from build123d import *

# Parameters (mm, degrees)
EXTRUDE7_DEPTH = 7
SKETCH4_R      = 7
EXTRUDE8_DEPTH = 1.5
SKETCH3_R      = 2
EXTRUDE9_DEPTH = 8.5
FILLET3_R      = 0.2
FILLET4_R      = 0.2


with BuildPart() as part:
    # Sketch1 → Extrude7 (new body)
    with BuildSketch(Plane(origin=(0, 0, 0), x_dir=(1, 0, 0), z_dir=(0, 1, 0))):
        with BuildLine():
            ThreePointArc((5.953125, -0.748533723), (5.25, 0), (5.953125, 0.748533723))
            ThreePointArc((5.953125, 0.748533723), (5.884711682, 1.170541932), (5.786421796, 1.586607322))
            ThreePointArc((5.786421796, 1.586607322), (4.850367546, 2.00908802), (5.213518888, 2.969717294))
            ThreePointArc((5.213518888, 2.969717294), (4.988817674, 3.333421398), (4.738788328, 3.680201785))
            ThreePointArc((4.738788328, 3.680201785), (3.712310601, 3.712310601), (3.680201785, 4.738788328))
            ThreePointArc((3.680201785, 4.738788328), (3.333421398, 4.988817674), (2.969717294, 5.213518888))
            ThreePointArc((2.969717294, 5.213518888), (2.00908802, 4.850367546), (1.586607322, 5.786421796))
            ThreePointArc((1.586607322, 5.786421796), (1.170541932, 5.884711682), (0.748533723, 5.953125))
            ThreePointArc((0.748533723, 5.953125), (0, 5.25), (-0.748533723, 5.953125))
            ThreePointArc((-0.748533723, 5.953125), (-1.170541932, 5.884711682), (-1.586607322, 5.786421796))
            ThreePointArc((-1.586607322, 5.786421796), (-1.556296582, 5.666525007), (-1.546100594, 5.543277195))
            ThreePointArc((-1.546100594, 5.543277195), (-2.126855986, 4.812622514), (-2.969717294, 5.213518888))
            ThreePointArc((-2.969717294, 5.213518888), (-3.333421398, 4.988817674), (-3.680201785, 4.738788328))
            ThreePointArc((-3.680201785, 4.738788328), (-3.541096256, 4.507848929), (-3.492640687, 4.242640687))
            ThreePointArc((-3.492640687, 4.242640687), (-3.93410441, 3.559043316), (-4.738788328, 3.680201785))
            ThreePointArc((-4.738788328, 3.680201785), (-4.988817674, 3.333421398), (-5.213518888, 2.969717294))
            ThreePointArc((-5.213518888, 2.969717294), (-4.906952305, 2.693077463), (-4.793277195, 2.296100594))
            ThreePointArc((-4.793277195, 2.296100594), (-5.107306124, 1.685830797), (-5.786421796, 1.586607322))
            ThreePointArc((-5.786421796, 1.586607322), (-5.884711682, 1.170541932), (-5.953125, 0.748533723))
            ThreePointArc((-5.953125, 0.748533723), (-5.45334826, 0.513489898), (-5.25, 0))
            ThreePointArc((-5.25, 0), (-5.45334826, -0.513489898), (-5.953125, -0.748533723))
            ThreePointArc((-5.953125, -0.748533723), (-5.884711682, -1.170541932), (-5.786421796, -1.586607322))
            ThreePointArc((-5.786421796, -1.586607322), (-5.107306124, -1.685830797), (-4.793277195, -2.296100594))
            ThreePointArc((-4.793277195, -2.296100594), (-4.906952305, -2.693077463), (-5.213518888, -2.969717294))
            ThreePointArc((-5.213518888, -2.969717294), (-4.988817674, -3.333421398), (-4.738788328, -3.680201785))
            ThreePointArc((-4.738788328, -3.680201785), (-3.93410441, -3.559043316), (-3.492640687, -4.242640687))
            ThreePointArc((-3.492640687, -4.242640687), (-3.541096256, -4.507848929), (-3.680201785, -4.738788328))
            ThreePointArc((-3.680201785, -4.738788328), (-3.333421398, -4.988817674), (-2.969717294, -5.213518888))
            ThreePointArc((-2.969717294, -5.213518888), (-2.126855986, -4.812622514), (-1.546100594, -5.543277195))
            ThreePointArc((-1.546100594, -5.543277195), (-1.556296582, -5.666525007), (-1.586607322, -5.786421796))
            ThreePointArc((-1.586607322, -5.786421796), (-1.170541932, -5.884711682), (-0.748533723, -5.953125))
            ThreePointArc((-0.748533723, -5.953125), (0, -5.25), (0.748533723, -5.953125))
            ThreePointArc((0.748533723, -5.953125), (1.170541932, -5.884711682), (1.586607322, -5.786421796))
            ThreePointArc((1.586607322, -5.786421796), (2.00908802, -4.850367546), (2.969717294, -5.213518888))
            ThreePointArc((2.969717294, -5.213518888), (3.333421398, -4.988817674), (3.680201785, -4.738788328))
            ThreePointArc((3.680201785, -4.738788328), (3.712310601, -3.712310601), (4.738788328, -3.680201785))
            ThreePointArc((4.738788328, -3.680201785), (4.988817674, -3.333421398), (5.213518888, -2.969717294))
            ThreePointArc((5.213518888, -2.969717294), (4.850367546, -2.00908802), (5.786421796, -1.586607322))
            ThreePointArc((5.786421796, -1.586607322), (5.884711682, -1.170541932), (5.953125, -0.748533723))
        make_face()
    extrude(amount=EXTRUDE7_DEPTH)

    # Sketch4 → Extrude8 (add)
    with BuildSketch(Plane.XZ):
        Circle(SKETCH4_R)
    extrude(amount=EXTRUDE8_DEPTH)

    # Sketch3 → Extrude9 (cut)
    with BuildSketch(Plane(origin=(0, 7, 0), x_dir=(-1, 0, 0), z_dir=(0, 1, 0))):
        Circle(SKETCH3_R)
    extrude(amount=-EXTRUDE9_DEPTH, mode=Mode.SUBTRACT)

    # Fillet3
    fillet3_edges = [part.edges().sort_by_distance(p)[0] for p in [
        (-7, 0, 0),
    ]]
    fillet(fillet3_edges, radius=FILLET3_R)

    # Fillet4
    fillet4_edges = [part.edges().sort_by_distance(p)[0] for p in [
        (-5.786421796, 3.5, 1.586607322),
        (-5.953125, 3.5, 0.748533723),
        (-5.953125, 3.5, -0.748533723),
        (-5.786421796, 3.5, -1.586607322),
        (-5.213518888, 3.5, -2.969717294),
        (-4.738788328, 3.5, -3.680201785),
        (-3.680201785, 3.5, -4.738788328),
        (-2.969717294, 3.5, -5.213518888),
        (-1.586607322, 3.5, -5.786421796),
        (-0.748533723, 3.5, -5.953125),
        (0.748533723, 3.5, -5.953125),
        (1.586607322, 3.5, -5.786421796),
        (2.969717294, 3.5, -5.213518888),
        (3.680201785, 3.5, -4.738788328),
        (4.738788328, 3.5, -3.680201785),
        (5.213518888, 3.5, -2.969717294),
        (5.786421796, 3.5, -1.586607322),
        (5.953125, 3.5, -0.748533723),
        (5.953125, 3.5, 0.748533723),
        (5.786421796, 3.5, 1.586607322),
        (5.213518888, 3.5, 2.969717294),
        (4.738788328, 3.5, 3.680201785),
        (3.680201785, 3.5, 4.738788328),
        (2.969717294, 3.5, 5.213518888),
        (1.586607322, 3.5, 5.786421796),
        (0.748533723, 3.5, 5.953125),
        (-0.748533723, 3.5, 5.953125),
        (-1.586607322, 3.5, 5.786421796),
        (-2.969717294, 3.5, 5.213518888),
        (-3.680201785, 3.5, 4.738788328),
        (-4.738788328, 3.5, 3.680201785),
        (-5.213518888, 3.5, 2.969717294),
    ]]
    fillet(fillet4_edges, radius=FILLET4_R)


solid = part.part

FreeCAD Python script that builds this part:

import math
import FreeCAD as App
import Part
import Sketcher


def edges_at(feature, points):
    """Names of the edges that pass closest to the given points."""
    edges = feature.Shape.Edges
    near = lambda p: min(range(len(edges)), key=lambda i: edges[i].distToShape(Part.Vertex(*p))[0])
    return sorted({f"Edge{near(p) + 1}" for p in points})

doc = App.newDocument("Part")
body = doc.addObject("PartDesign::Body", "Body")

# Sketch on XZ plane
sketch1 = body.newObject("Sketcher::SketchObject", "Sketch")
sketch1.AttachmentSupport = (doc.getObject("XZ_Plane"), [""])
sketch1.MapMode = "FlatFace"
sketch1.addGeometry([
    Part.ArcOfCircle(Part.Circle(App.Vector(6, 0, 0), App.Vector(0, 0, 1), 0.75), math.radians(94), math.radians(266)),  # 0
    Part.ArcOfCircle(Part.Circle(App.Vector(0, 0, 0), App.Vector(0, 0, 1), 6), math.radians(-15.33), math.radians(-7.17)),  # 1
    Part.ArcOfCircle(Part.Circle(App.Vector(5.54, -2.3, 0), App.Vector(0, 0, 1), 0.75), math.radians(71), math.radians(244)),  # 2
    Part.ArcOfCircle(Part.Circle(App.Vector(0, 0, 0), App.Vector(0, 0, 1), 6), math.radians(-37.83), math.radians(-29.67)),  # 3
    Part.ArcOfCircle(Part.Circle(App.Vector(4.24, -4.24, 0), App.Vector(0, 0, 1), 0.75), math.radians(49), math.radians(221)),  # 4
    Part.ArcOfCircle(Part.Circle(App.Vector(0, 0, 0), App.Vector(0, 0, 1), 6), math.radians(-60.33), math.radians(-52.17)),  # 5
    Part.ArcOfCircle(Part.Circle(App.Vector(2.3, -5.54, 0), App.Vector(0, 0, 1), 0.75), math.radians(26), math.radians(199)),  # 6
    Part.ArcOfCircle(Part.Circle(App.Vector(0, 0, 0), App.Vector(0, 0, 1), 6), math.radians(-82.83), math.radians(-74.67)),  # 7
    Part.ArcOfCircle(Part.Circle(App.Vector(0, -6, 0), App.Vector(0, 0, 1), 0.75), math.radians(4), math.radians(176)),  # 8
    Part.ArcOfCircle(Part.Circle(App.Vector(0, 0, 0), App.Vector(0, 0, 1), 6), math.radians(-105.33), math.radians(-97.17)),  # 9
    Part.ArcOfCircle(Part.Circle(App.Vector(-2.3, -5.54, 0), App.Vector(0, 0, 1), 0.75), math.radians(-18.92), math.radians(0)),  # 10
    Part.ArcOfCircle(Part.Circle(App.Vector(-2.3, -5.54, 0), App.Vector(0, 0, 1), 0.75), math.radians(0), math.radians(154)),  # 11
    Part.ArcOfCircle(Part.Circle(App.Vector(0, 0, 0), App.Vector(0, 0, 1), 6), math.radians(-127.83), math.radians(-119.67)),  # 12
    Part.ArcOfCircle(Part.Circle(App.Vector(-4.24, -4.24, 0), App.Vector(0, 0, 1), 0.75), math.radians(-41), math.radians(0)),  # 13
    Part.ArcOfCircle(Part.Circle(App.Vector(-4.24, -4.24, 0), App.Vector(0, 0, 1), 0.75), math.radians(0), math.radians(131)),  # 14
    Part.ArcOfCircle(Part.Circle(App.Vector(0, 0, 0), App.Vector(0, 0, 1), 6), math.radians(-150.33), math.radians(-142.17)),  # 15
    Part.ArcOfCircle(Part.Circle(App.Vector(-5.54, -2.3, 0), App.Vector(0, 0, 1), 0.75), math.radians(-64), math.radians(0)),  # 16
    Part.ArcOfCircle(Part.Circle(App.Vector(-5.54, -2.3, 0), App.Vector(0, 0, 1), 0.75), math.radians(0), math.radians(109)),  # 17
    Part.ArcOfCircle(Part.Circle(App.Vector(0, 0, 0), App.Vector(0, 0, 1), 6), math.radians(-172.83), math.radians(-164.67)),  # 18
    Part.ArcOfCircle(Part.Circle(App.Vector(-6, 0, 0), App.Vector(0, 0, 1), 0.75), math.radians(-86), math.radians(0)),  # 19
    Part.ArcOfCircle(Part.Circle(App.Vector(-6, 0, 0), App.Vector(0, 0, 1), 0.75), math.radians(0), math.radians(86)),  # 20
    Part.ArcOfCircle(Part.Circle(App.Vector(0, 0, 0), App.Vector(0, 0, 1), 6), math.radians(164.67), math.radians(172.83)),  # 21
    Part.ArcOfCircle(Part.Circle(App.Vector(-5.54, 2.3, 0), App.Vector(0, 0, 1), 0.75), math.radians(-109), math.radians(0)),  # 22
    Part.ArcOfCircle(Part.Circle(App.Vector(-5.54, 2.3, 0), App.Vector(0, 0, 1), 0.75), math.radians(0), math.radians(64)),  # 23
    Part.ArcOfCircle(Part.Circle(App.Vector(0, 0, 0), App.Vector(0, 0, 1), 6), math.radians(142.17), math.radians(150.33)),  # 24
    Part.ArcOfCircle(Part.Circle(App.Vector(-4.24, 4.24, 0), App.Vector(0, 0, 1), 0.75), math.radians(-131), math.radians(0)),  # 25
    Part.ArcOfCircle(Part.Circle(App.Vector(-4.24, 4.24, 0), App.Vector(0, 0, 1), 0.75), math.radians(0), math.radians(41)),  # 26
    Part.ArcOfCircle(Part.Circle(App.Vector(0, 0, 0), App.Vector(0, 0, 1), 6), math.radians(119.67), math.radians(127.83)),  # 27
    Part.ArcOfCircle(Part.Circle(App.Vector(-2.3, 5.54, 0), App.Vector(0, 0, 1), 0.75), math.radians(-154), math.radians(0)),  # 28
    Part.ArcOfCircle(Part.Circle(App.Vector(-2.3, 5.54, 0), App.Vector(0, 0, 1), 0.75), math.radians(0), math.radians(18.92)),  # 29
    Part.ArcOfCircle(Part.Circle(App.Vector(0, 0, 0), App.Vector(0, 0, 1), 6), math.radians(97.17), math.radians(105.33)),  # 30
    Part.ArcOfCircle(Part.Circle(App.Vector(0, 6, 0), App.Vector(0, 0, 1), 0.75), math.radians(-176), math.radians(-4)),  # 31
    Part.ArcOfCircle(Part.Circle(App.Vector(0, 0, 0), App.Vector(0, 0, 1), 6), math.radians(74.67), math.radians(82.83)),  # 32
    Part.ArcOfCircle(Part.Circle(App.Vector(2.3, 5.54, 0), App.Vector(0, 0, 1), 0.75), math.radians(161), math.radians(334)),  # 33
    Part.ArcOfCircle(Part.Circle(App.Vector(0, 0, 0), App.Vector(0, 0, 1), 6), math.radians(52.17), math.radians(60.33)),  # 34
    Part.ArcOfCircle(Part.Circle(App.Vector(4.24, 4.24, 0), App.Vector(0, 0, 1), 0.75), math.radians(139), math.radians(311)),  # 35
    Part.ArcOfCircle(Part.Circle(App.Vector(0, 0, 0), App.Vector(0, 0, 1), 6), math.radians(29.67), math.radians(37.83)),  # 36
    Part.ArcOfCircle(Part.Circle(App.Vector(5.54, 2.3, 0), App.Vector(0, 0, 1), 0.75), math.radians(116), math.radians(289)),  # 37
    Part.ArcOfCircle(Part.Circle(App.Vector(0, 0, 0), App.Vector(0, 0, 1), 6), math.radians(7.17), math.radians(15.33)),  # 38
], False)
sketch1.addConstraint([
    Sketcher.Constraint("Coincident", 0, 2, 1, 2),
    Sketcher.Constraint("Coincident", 1, 1, 2, 1),
    Sketcher.Constraint("Coincident", 2, 2, 3, 2),
    Sketcher.Constraint("Coincident", 3, 1, 4, 1),
    Sketcher.Constraint("Coincident", 4, 2, 5, 2),
    Sketcher.Constraint("Coincident", 5, 1, 6, 1),
    Sketcher.Constraint("Coincident", 6, 2, 7, 2),
    Sketcher.Constraint("Coincident", 7, 1, 8, 1),
    Sketcher.Constraint("Coincident", 8, 2, 9, 2),
    Sketcher.Constraint("Coincident", 9, 1, 10, 1),
    Sketcher.Constraint("Tangent", 10, 2, 11, 1),
    Sketcher.Constraint("Coincident", 11, 2, 12, 2),
    Sketcher.Constraint("Coincident", 12, 1, 13, 1),
    Sketcher.Constraint("Tangent", 13, 2, 14, 1),
    Sketcher.Constraint("Coincident", 14, 2, 15, 2),
    Sketcher.Constraint("Coincident", 15, 1, 16, 1),
    Sketcher.Constraint("Tangent", 16, 2, 17, 1),
    Sketcher.Constraint("Coincident", 17, 2, 18, 2),
    Sketcher.Constraint("Coincident", 18, 1, 19, 1),
    Sketcher.Constraint("Tangent", 19, 2, 20, 1),
    Sketcher.Constraint("Coincident", 20, 2, 21, 2),
    Sketcher.Constraint("Coincident", 21, 1, 22, 1),
    Sketcher.Constraint("Tangent", 22, 2, 23, 1),
    Sketcher.Constraint("Coincident", 23, 2, 24, 2),
    Sketcher.Constraint("Coincident", 24, 1, 25, 1),
    Sketcher.Constraint("Tangent", 25, 2, 26, 1),
    Sketcher.Constraint("Coincident", 26, 2, 27, 2),
    Sketcher.Constraint("Coincident", 27, 1, 28, 1),
    Sketcher.Constraint("Tangent", 28, 2, 29, 1),
    Sketcher.Constraint("Coincident", 29, 2, 30, 2),
    Sketcher.Constraint("Coincident", 30, 1, 31, 1),
    Sketcher.Constraint("Coincident", 31, 2, 32, 2),
    Sketcher.Constraint("Coincident", 32, 1, 33, 1),
    Sketcher.Constraint("Coincident", 33, 2, 34, 2),
    Sketcher.Constraint("Coincident", 34, 1, 35, 1),
    Sketcher.Constraint("Coincident", 35, 2, 36, 2),
    Sketcher.Constraint("Coincident", 36, 1, 37, 1),
    Sketcher.Constraint("Coincident", 37, 2, 38, 2),
    Sketcher.Constraint("Coincident", 38, 1, 0, 1),
    Sketcher.Constraint("Coincident", 1, 3, -1, 1),
    Sketcher.Constraint("Coincident", 3, 3, -1, 1),
    Sketcher.Constraint("Coincident", 5, 3, -1, 1),
    Sketcher.Constraint("Coincident", 7, 3, -1, 1),
    Sketcher.Constraint("Coincident", 9, 3, -1, 1),
    Sketcher.Constraint("Coincident", 12, 3, -1, 1),
    Sketcher.Constraint("Coincident", 15, 3, -1, 1),
    Sketcher.Constraint("Coincident", 18, 3, -1, 1),
    Sketcher.Constraint("Coincident", 21, 3, -1, 1),
    Sketcher.Constraint("Coincident", 24, 3, -1, 1),
    Sketcher.Constraint("Coincident", 27, 3, -1, 1),
    Sketcher.Constraint("Coincident", 30, 3, -1, 1),
    Sketcher.Constraint("Coincident", 32, 3, -1, 1),
    Sketcher.Constraint("Coincident", 34, 3, -1, 1),
    Sketcher.Constraint("Coincident", 36, 3, -1, 1),
    Sketcher.Constraint("Coincident", 38, 3, -1, 1),
    Sketcher.Constraint("Equal", 0, 2),
    Sketcher.Constraint("Equal", 1, 3),
    Sketcher.Constraint("Equal", 2, 4),
    Sketcher.Constraint("Equal", 3, 5),
    Sketcher.Constraint("Equal", 4, 6),
    Sketcher.Constraint("Equal", 5, 7),
    Sketcher.Constraint("Equal", 6, 8),
    Sketcher.Constraint("Equal", 7, 9),
    Sketcher.Constraint("Equal", 8, 10),
    Sketcher.Constraint("Equal", 10, 11),
    Sketcher.Constraint("Equal", 9, 12),
    Sketcher.Constraint("Equal", 11, 13),
    Sketcher.Constraint("Equal", 13, 14),
    Sketcher.Constraint("Equal", 12, 15),
    Sketcher.Constraint("Equal", 14, 16),
    Sketcher.Constraint("Equal", 16, 17),
    Sketcher.Constraint("Equal", 15, 18),
    Sketcher.Constraint("Equal", 17, 19),
    Sketcher.Constraint("Equal", 19, 20),
    Sketcher.Constraint("Equal", 18, 21),
    Sketcher.Constraint("Equal", 20, 22),
    Sketcher.Constraint("Equal", 22, 23),
    Sketcher.Constraint("Equal", 21, 24),
    Sketcher.Constraint("Equal", 23, 25),
    Sketcher.Constraint("Equal", 25, 26),
    Sketcher.Constraint("Equal", 24, 27),
    Sketcher.Constraint("Equal", 26, 28),
    Sketcher.Constraint("Equal", 28, 29),
    Sketcher.Constraint("Equal", 27, 30),
    Sketcher.Constraint("Equal", 29, 31),
    Sketcher.Constraint("Equal", 30, 32),
    Sketcher.Constraint("Equal", 31, 33),
    Sketcher.Constraint("Equal", 32, 34),
    Sketcher.Constraint("Equal", 33, 35),
    Sketcher.Constraint("Equal", 34, 36),
    Sketcher.Constraint("Equal", 35, 37),
    Sketcher.Constraint("Equal", 36, 38),
    Sketcher.Constraint("Symmetric", 0, 3, 19, 3, -1, 1),
    Sketcher.Constraint("Symmetric", 2, 3, 22, 3, -1, 1),
    Sketcher.Constraint("Symmetric", 4, 3, 25, 3, -1, 1),
    Sketcher.Constraint("Symmetric", 6, 3, 28, 3, -1, 1),
    Sketcher.Constraint("Symmetric", 8, 3, 31, 3, -1, 1),
    Sketcher.Constraint("Symmetric", 10, 3, 33, 3, -1, 1),
    Sketcher.Constraint("Symmetric", 13, 3, 35, 3, -1, 1),
    Sketcher.Constraint("Symmetric", 16, 3, 37, 3, -1, 1),
    Sketcher.Constraint("Symmetric", 6, 3, 10, 3, -2),
    Sketcher.Constraint("Symmetric", 4, 3, 13, 3, -2),
    Sketcher.Constraint("Symmetric", 2, 3, 16, 3, -2),
    Sketcher.Constraint("PointOnObject", 0, 3, -1),
    Sketcher.Constraint("PointOnObject", 8, 3, -2),
    Sketcher.Constraint("PointOnObject", 19, 2, -1),
    Sketcher.Constraint("Horizontal", 11, 3, 10, 2),
    Sketcher.Constraint("Horizontal", 14, 3, 13, 2),
    Sketcher.Constraint("Horizontal", 17, 3, 16, 2),
    Sketcher.Constraint("Horizontal", 37, 3, 22, 2),
    Sketcher.Constraint("Horizontal", 35, 3, 25, 2),
    Sketcher.Constraint("Horizontal", 33, 3, 28, 2),
    Sketcher.Constraint("Radius", 1, 6.0),
    Sketcher.Constraint("Radius", 0, 0.75),
    Sketcher.Constraint("DistanceX", -1, 1, 0, 3, 6.0),
    Sketcher.Constraint("DistanceY", 8, 3, -1, 1, 6.0),
    Sketcher.Constraint("DistanceY", 2, 3, -1, 1, 2.296101),
    Sketcher.Constraint("DistanceX", -1, 1, 6, 3, 2.296101),
    Sketcher.Constraint("DistanceY", 3, 1, -1, 1, 3.680202),
    Sketcher.Constraint("DistanceX", -1, 1, 4, 2, 3.680202),
    Sketcher.Constraint("DistanceX", -1, 1, 1, 1, 5.786422),
    Sketcher.Constraint("DistanceY", 5, 1, -1, 1, 5.213519),
])
pad1 = body.newObject("PartDesign::Pad", "Pad")
pad1.Profile = sketch1
pad1.Length = 7
pad1.Reversed = True

# Sketch on XZ plane
sketch2 = body.newObject("Sketcher::SketchObject", "Sketch001")
sketch2.AttachmentSupport = (doc.getObject("XZ_Plane"), [""])
sketch2.MapMode = "FlatFace"
sketch2.addGeometry(Part.Circle(App.Vector(0, 0, 0), App.Vector(0, 0, 1), 7), False)
sketch2.addConstraint([
    Sketcher.Constraint("Coincident", 0, 3, -1, 1),
    Sketcher.Constraint("Diameter", 0, 14.0),
])
pad2 = body.newObject("PartDesign::Pad", "Pad001")
pad2.Profile = sketch2
pad2.Length = 1.5

# Sketch on XZ plane
sketch3 = body.newObject("Sketcher::SketchObject", "Sketch002")
sketch3.AttachmentSupport = (doc.getObject("XZ_Plane"), [""])
sketch3.MapMode = "FlatFace"
sketch3.AttachmentOffset = App.Placement(App.Vector(0, 0, -7), App.Rotation())
sketch3.addGeometry(Part.Circle(App.Vector(0, 0, 0), App.Vector(0, 0, 1), 2), False)
sketch3.addConstraint([
    Sketcher.Constraint("Coincident", 0, 3, -1, 1),
    Sketcher.Constraint("Diameter", 0, 4.0),
])
pocket1 = body.newObject("PartDesign::Pocket", "Pocket")
pocket1.Profile = sketch3
pocket1.Length = 8.5
pocket1.Reversed = True
doc.recompute()

fillet = body.newObject("PartDesign::Fillet", "Fillet")
fillet.Base = (pocket1, edges_at(pocket1, [(-7, 0, 0)]))
fillet.Radius = 0.2
doc.recompute()

fillet2 = body.newObject("PartDesign::Fillet", "Fillet001")
fillet2.Base = (fillet, edges_at(fillet, [
    (-5.786, 3.5, 1.587),
    (-5.953, 3.5, 0.749),
    (-5.953, 3.5, -0.749),
    (-5.786, 3.5, -1.587),
    (-5.214, 3.5, -2.97),
    (-4.739, 3.5, -3.68),
    (-3.68, 3.5, -4.739),
    (-2.97, 3.5, -5.214),
    (-1.587, 3.5, -5.786),
    (-0.749, 3.5, -5.953),
    (0.749, 3.5, -5.953),
    (1.587, 3.5, -5.786),
    (2.97, 3.5, -5.214),
    (3.68, 3.5, -4.739),
    (4.739, 3.5, -3.68),
    (5.214, 3.5, -2.97),
    (5.786, 3.5, -1.587),
    (5.953, 3.5, -0.749),
    (5.953, 3.5, 0.749),
    (5.786, 3.5, 1.587),
    (5.214, 3.5, 2.97),
    (4.739, 3.5, 3.68),
    (3.68, 3.5, 4.739),
    (2.97, 3.5, 5.214),
    (1.587, 3.5, 5.786),
    (0.749, 3.5, 5.953),
    (-0.749, 3.5, 5.953),
    (-1.587, 3.5, 5.786),
    (-2.97, 3.5, 5.214),
    (-3.68, 3.5, 4.739),
    (-4.739, 3.5, 3.68),
    (-5.214, 3.5, 2.97),
]))
fillet2.Radius = 0.2

doc.recompute()
